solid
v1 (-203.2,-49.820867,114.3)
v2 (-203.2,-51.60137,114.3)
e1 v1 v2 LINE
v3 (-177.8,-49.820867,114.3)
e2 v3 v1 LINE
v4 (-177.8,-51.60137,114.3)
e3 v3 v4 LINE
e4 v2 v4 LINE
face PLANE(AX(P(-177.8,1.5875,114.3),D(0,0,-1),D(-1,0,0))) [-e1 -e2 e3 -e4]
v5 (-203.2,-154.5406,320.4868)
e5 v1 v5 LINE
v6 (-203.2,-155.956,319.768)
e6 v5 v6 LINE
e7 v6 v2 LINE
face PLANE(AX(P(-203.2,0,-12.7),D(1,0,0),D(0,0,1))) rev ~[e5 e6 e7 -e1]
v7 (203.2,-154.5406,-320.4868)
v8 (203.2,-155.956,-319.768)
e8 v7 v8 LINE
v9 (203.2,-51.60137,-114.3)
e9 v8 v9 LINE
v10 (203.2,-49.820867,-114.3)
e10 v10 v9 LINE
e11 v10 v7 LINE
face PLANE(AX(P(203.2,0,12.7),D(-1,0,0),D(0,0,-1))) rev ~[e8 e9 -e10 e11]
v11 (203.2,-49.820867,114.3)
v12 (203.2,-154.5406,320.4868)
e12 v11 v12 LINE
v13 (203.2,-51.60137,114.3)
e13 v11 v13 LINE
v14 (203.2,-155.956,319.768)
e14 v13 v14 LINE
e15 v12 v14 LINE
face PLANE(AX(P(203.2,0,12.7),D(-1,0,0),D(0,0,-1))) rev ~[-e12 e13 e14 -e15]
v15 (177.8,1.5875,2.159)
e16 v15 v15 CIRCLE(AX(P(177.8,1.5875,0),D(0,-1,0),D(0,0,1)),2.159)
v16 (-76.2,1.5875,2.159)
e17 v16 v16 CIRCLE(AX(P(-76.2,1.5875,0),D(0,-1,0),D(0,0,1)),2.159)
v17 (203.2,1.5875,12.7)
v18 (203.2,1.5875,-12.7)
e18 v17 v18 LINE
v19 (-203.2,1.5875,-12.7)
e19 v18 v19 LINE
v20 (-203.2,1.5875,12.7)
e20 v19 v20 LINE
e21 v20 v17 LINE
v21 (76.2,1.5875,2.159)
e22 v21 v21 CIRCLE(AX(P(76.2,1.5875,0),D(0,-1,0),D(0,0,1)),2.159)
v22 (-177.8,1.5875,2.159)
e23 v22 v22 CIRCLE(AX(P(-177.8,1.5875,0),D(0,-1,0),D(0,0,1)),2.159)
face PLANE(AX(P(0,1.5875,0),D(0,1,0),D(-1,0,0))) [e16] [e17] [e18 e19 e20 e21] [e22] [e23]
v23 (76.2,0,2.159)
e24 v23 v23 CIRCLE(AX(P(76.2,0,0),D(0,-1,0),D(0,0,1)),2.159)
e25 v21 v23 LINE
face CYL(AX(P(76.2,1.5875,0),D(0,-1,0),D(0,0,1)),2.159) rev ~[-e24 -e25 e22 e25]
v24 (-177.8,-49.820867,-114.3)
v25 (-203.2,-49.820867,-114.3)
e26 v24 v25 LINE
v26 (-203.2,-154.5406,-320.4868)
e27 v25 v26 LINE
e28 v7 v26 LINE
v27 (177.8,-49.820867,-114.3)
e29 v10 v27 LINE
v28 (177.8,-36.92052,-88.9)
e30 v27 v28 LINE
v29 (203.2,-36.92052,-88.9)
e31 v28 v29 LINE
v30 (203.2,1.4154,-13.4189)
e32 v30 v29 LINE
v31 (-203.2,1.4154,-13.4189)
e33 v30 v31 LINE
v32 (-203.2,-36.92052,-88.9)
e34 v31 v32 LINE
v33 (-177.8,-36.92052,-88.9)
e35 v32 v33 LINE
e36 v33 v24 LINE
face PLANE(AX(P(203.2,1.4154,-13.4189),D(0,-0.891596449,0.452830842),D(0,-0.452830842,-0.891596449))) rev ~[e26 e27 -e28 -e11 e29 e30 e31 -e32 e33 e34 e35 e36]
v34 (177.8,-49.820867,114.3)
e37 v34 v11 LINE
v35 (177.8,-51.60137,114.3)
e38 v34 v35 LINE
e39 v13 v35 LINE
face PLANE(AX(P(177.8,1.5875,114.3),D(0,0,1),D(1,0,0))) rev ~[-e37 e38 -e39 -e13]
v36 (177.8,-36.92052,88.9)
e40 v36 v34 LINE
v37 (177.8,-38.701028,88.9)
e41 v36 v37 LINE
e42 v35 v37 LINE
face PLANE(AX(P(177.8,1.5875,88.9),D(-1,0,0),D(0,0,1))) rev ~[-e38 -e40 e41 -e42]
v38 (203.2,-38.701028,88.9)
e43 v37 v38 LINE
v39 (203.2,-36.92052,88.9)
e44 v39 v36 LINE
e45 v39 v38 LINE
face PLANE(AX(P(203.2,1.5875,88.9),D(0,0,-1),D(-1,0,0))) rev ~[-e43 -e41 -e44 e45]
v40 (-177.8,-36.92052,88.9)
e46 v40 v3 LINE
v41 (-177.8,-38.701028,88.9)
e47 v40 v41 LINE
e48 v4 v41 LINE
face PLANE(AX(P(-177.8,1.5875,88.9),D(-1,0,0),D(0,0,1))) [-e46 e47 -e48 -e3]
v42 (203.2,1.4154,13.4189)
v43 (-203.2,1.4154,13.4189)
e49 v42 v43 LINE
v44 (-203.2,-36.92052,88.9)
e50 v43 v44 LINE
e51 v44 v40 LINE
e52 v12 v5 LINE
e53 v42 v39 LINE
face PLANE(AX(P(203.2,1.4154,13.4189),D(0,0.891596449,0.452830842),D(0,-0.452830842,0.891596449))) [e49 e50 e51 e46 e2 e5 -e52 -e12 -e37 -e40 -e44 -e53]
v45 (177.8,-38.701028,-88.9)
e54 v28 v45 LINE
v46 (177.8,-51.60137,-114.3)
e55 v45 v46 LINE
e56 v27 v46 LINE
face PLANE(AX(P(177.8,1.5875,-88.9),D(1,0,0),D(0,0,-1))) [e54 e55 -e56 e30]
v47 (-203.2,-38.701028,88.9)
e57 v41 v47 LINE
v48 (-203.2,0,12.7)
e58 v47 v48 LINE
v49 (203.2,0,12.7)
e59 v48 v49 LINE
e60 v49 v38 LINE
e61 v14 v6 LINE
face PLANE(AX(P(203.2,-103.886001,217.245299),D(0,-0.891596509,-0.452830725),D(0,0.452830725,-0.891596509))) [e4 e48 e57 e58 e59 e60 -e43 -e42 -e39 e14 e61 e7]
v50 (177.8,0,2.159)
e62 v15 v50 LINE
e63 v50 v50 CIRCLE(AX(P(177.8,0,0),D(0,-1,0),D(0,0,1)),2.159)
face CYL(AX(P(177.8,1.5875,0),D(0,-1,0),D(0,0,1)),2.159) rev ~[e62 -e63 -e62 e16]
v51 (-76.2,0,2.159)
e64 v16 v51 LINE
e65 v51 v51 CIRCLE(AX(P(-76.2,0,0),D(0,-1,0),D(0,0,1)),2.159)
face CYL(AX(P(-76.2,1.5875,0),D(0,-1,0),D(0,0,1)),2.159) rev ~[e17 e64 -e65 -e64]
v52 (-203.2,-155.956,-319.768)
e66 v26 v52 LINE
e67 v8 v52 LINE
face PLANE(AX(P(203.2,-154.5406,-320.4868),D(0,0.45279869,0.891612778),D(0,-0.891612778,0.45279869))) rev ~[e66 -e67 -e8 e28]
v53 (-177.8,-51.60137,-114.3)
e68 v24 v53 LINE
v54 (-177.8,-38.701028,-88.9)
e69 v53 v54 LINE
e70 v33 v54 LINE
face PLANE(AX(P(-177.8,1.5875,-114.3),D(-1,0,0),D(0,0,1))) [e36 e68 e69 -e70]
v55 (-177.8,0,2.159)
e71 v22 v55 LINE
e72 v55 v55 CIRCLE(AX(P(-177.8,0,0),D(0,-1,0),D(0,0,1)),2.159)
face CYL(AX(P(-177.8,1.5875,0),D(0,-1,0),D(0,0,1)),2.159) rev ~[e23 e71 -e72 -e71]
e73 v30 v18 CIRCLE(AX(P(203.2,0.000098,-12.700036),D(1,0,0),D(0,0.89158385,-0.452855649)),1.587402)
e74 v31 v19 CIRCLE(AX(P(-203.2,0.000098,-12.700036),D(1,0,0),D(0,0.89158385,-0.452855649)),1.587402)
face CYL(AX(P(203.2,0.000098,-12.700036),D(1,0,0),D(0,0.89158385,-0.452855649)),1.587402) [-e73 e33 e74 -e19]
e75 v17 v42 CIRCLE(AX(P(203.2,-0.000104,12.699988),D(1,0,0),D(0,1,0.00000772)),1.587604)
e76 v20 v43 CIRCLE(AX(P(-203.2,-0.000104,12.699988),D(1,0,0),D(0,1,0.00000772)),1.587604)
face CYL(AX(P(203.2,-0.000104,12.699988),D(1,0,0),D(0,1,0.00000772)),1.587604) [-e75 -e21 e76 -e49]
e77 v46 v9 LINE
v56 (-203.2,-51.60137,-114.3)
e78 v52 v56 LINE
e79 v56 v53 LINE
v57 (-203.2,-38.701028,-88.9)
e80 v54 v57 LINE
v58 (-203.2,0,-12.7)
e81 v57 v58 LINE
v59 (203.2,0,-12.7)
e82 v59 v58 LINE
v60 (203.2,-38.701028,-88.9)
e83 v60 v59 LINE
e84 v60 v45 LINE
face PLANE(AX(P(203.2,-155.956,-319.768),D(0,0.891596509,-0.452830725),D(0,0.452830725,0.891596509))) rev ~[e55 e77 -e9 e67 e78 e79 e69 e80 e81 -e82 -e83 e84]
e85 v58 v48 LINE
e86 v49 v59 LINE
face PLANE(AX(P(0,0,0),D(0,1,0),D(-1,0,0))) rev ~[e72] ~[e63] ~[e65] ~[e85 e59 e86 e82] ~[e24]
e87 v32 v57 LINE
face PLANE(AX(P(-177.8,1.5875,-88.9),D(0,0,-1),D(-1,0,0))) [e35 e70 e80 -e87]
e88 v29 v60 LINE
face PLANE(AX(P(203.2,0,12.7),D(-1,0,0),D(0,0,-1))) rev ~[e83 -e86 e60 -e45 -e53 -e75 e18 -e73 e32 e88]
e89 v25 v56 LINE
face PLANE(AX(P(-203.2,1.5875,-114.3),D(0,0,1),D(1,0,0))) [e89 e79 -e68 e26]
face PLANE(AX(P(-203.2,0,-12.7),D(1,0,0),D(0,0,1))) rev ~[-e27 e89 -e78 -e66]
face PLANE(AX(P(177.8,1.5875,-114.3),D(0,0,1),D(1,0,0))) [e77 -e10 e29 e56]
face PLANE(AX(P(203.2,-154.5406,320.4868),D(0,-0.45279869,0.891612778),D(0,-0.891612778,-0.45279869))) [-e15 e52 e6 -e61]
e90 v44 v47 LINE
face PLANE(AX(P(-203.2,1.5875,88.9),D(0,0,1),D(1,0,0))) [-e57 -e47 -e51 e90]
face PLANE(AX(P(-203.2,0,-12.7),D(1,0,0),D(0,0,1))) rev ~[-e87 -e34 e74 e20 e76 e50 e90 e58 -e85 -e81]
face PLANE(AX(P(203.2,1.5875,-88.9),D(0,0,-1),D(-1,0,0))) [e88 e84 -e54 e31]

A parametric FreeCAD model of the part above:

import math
import FreeCAD as App
import Part
import Sketcher
from FreeCAD import Vector
Q = App.Units.Quantity

doc = App.newDocument("Part")
body = doc.addObject("PartDesign::Body", "Body")

sketch1 = body.newObject("Sketcher::SketchObject", "Sketch")
sketch1.AttachmentSupport = (doc.getObject("XZ_Plane"), [""])
sketch1.MapMode = "FlatFace"
sketch1.addGeometry([
    Part.LineSegment(Vector(-203, -13, 0), Vector(-203, 13, 0)),
    Part.LineSegment(Vector(-203, 13, 0), Vector(203, 13, 0)),
    Part.LineSegment(Vector(203, 13, 0), Vector(203, -13, 0)),
    Part.LineSegment(Vector(203, -13, 0), Vector(-203, -13, 0)),
], False)
sketch1.addConstraint([
    Sketcher.Constraint("Coincident", 0, 2, 1, 1),
    Sketcher.Constraint("Coincident", 1, 2, 2, 1),
    Sketcher.Constraint("Coincident", 2, 2, 3, 1),
    Sketcher.Constraint("Coincident", 3, 2, 0, 1),
    Sketcher.Constraint("Vertical", 0),
    Sketcher.Constraint("Horizontal", 1),
    Sketcher.Constraint("Vertical", 2),
    Sketcher.Constraint("Horizontal", 3),
    Sketcher.Constraint("Symmetric", 0, 2, 2, 2, -1, 1),
    Sketcher.Constraint("DistanceX", 1, 1, 1, 2, Q("16 in")),
    Sketcher.Constraint("DistanceY", 0, 1, 0, 2, Q("1 in")),
])
pad1 = body.newObject("PartDesign::Pad", "Pad")
pad1.Profile = sketch1
pad1.Length = Q("0.0625 in")
pad1.Reversed = True

sketch2 = body.newObject("Sketcher::SketchObject", "Sketch001")
sketch2.AttachmentSupport = (doc.getObject("XZ_Plane"), [""])
sketch2.MapMode = "FlatFace"
sketch2.AttachmentOffset = App.Placement(Vector(0, 0, -0.0625 * 25.4), App.Rotation())
sketch2.addGeometry([
    Part.Circle(Vector(-177.8, 0, 0), Vector(0, 0, 1), 2.2),
    Part.Circle(Vector(177.8, 0, 0), Vector(0, 0, 1), 2.2),
    Part.Circle(Vector(76.2, 0, 0), Vector(0, 0, 1), 2.2),
    Part.Circle(Vector(-76.2, 0, 0), Vector(0, 0, 1), 2.2),
], False)
sketch2.addConstraint([
    Sketcher.Constraint("Equal", 0, 1),
    Sketcher.Constraint("Equal", 1, 2),
    Sketcher.Constraint("Equal", 2, 3),
    Sketcher.Constraint("Symmetric", 0, 3, 1, 3, -1, 1),
    Sketcher.Constraint("Symmetric", 2, 3, 3, 3, -1, 1),
    Sketcher.Constraint("PointOnObject", 0, 3, -1),
    Sketcher.Constraint("PointOnObject", 2, 3, -1),
    Sketcher.Constraint("Diameter", 0, Q("0.17 in")),
    Sketcher.Constraint("DistanceX", 0, 3, -1, 1, Q("7 in")),
    Sketcher.Constraint("DistanceX", -1, 1, 2, 3, Q("3 in")),
])
doc.recompute()
hole = body.newObject("PartDesign::Hole", "Hole")
hole.Profile = sketch2
hole.ThreadType = "None"
hole.Diameter = Q("0.17 in")
hole.DepthType = "ThroughAll"
hole.Reversed = True

sketch3 = body.newObject("Sketcher::SketchObject", "Sketch002")
sketch3.AttachmentSupport = (doc.getObject("YZ_Plane"), [""])
sketch3.MapMode = "FlatFace"
sketch3.AttachmentOffset = App.Placement(Vector(0, 0, 8 * 25.4), App.Rotation())
sketch3.addGeometry([
    Part.LineSegment(Vector(0, 12.7, 0), Vector(1.6, 12.7, 0)),
    Part.ArcOfCircle(Part.Circle(Vector(0, 12.7, 0), Vector(0, 0, 1), 1.6), math.radians(0), math.radians(27)),
    Part.LineSegment(Vector(1.4, 13.4, 0), Vector(-154.5, 320.5, 0)),
    Part.LineSegment(Vector(-154.5, 320.5, 0), Vector(-156, 319.8, 0)),
    Part.LineSegment(Vector(-156, 319.8, 0), Vector(0, 12.7, 0)),
    Part.LineSegment(Vector(1.6, -12.7, 0), Vector(0, -12.7, 0)),
    Part.LineSegment(Vector(0, -12.7, 0), Vector(-156, -319.8, 0)),
    Part.LineSegment(Vector(-156, -319.8, 0), Vector(-154.5, -320.5, 0)),
    Part.LineSegment(Vector(-154.5, -320.5, 0), Vector(1.4, -13.4, 0)),
    Part.ArcOfCircle(Part.Circle(Vector(0, -12.7, 0), Vector(0, 0, 1), 1.6), math.radians(-27), math.radians(0)),
], False)
sketch3.addConstraint([
    Sketcher.Constraint("Coincident", 0, 2, 1, 1),
    Sketcher.Constraint("Tangent", 1, 2, 2, 1),
    Sketcher.Constraint("Coincident", 2, 2, 3, 1),
    Sketcher.Constraint("Coincident", 3, 2, 4, 1),
    Sketcher.Constraint("Coincident", 4, 2, 0, 1),
    Sketcher.Constraint("Coincident", 5, 2, 6, 1),
    Sketcher.Constraint("Coincident", 6, 2, 7, 1),
    Sketcher.Constraint("Coincident", 7, 2, 8, 1),
    Sketcher.Constraint("Tangent", 8, 2, 9, 1),
    Sketcher.Constraint("Coincident", 9, 2, 5, 1),
    Sketcher.Constraint("Horizontal", 0),
    Sketcher.Constraint("Horizontal", 5),
    Sketcher.Constraint("Coincident", 4, 2, 1, 3),
    Sketcher.Constraint("Coincident", 5, 2, 9, 3),
    Sketcher.Constraint("Equal", 1, 9),
    Sketcher.Constraint("Symmetric", 1, 3, 9, 3, -1, 1),
    Sketcher.Constraint("Symmetric", 3, 2, 6, 2, -1),
    Sketcher.Constraint("Symmetric", 2, 2, 7, 2, -1),
    Sketcher.Constraint("PointOnObject", 1, 3, -2),
    Sketcher.Constraint("Perpendicular", 2, 3),
    Sketcher.Constraint("Perpendicular", 3, 4),
    Sketcher.Constraint("DistanceY", 9, 3, 1, 3, Q("1 in")),
    Sketcher.Constraint("Radius", 1, Q("0.0625 in")),
    Sketcher.Constraint("DistanceX", 3, 2, -1, 1, Q("6.14 in")),
    Sketcher.Constraint("DistanceY", 1, 2, 3, 2, Q("12.061 in")),
])
pad2 = body.newObject("PartDesign::Pad", "Pad001")
pad2.Profile = sketch3
pad2.Length = Q("16 in")
pad2.Reversed = True

sketch4 = body.newObject("Sketcher::SketchObject", "Sketch003")
sketch4.AttachmentSupport = (doc.getObject("XZ_Plane"), [""])
sketch4.MapMode = "FlatFace"
sketch4.AttachmentOffset = App.Placement(Vector(0, 0, -0.0625 * 25.4), App.Rotation())
sketch4.addGeometry([
    Part.LineSegment(Vector(178, 114, 0), Vector(203, 114, 0)),
    Part.LineSegment(Vector(203, 114, 0), Vector(203, 89, 0)),
    Part.LineSegment(Vector(203, 89, 0), Vector(178, 89, 0)),
    Part.LineSegment(Vector(178, 89, 0), Vector(178, 114, 0)),
    Part.LineSegment(Vector(178, -89, 0), Vector(203, -89, 0)),
    Part.LineSegment(Vector(203, -89, 0), Vector(203, -114, 0)),
    Part.LineSegment(Vector(203, -114, 0), Vector(178, -114, 0)),
    Part.LineSegment(Vector(178, -114, 0), Vector(178, -89, 0)),
    Part.LineSegment(Vector(-203, -114, 0), Vector(-203, -89, 0)),
    Part.LineSegment(Vector(-203, -89, 0), Vector(-178, -89, 0)),
    Part.LineSegment(Vector(-178, -89, 0), Vector(-178, -114, 0)),
    Part.LineSegment(Vector(-178, -114, 0), Vector(-203, -114, 0)),
    Part.LineSegment(Vector(-203, 89, 0), Vector(-203, 114, 0)),
    Part.LineSegment(Vector(-203, 114, 0), Vector(-178, 114, 0)),
    Part.LineSegment(Vector(-178, 114, 0), Vector(-178, 89, 0)),
    Part.LineSegment(Vector(-178, 89, 0), Vector(-203, 89, 0)),
], False)
sketch4.addConstraint([
    Sketcher.Constraint("Coincident", 0, 2, 1, 1),
    Sketcher.Constraint("Coincident", 1, 2, 2, 1),
    Sketcher.Constraint("Coincident", 2, 2, 3, 1),
    Sketcher.Constraint("Coincident", 3, 2, 0, 1),
    Sketcher.Constraint("Coincident", 4, 2, 5, 1),
    Sketcher.Constraint("Coincident", 5, 2, 6, 1),
    Sketcher.Constraint("Coincident", 6, 2, 7, 1),
    Sketcher.Constraint("Coincident", 7, 2, 4, 1),
    Sketcher.Constraint("Coincident", 8, 2, 9, 1),
    Sketcher.Constraint("Coincident", 9, 2, 10, 1),
    Sketcher.Constraint("Coincident", 10, 2, 11, 1),
    Sketcher.Constraint("Coincident", 11, 2, 8, 1),
    Sketcher.Constraint("Coincident", 12, 2, 13, 1),
    Sketcher.Constraint("Coincident", 13, 2, 14, 1),
    Sketcher.Constraint("Coincident", 14, 2, 15, 1),
    Sketcher.Constraint("Coincident", 15, 2, 12, 1),
    Sketcher.Constraint("Horizontal", 0),
    Sketcher.Constraint("Vertical", 1),
    Sketcher.Constraint("Horizontal", 2),
    Sketcher.Constraint("Vertical", 3),
    Sketcher.Constraint("Horizontal", 4),
    Sketcher.Constraint("Vertical", 5),
    Sketcher.Constraint("Horizontal", 6),
    Sketcher.Constraint("Vertical", 7),
    Sketcher.Constraint("Vertical", 8),
    Sketcher.Constraint("Horizontal", 9),
    Sketcher.Constraint("Vertical", 10),
    Sketcher.Constraint("Horizontal", 11),
    Sketcher.Constraint("Vertical", 12),
    Sketcher.Constraint("Horizontal", 13),
    Sketcher.Constraint("Vertical", 14),
    Sketcher.Constraint("Horizontal", 15),
    Sketcher.Constraint("Symmetric", 1, 2, 8, 2, -1, 1),
    Sketcher.Constraint("Symmetric", 3, 2, 10, 2, -1, 1),
    Sketcher.Constraint("Symmetric", 5, 2, 12, 2, -1, 1),
    Sketcher.Constraint("Symmetric", 7, 2, 14, 2, -1, 1),
    Sketcher.Constraint("Symmetric", 4, 2, 8, 2, -2),
    Sketcher.Constraint("Symmetric", 6, 2, 10, 2, -2),
    Sketcher.Constraint("Equal", 15, 1),
    Sketcher.Constraint("DistanceX", 0, 1, 0, 2, Q("1 in")),
    Sketcher.Constraint("DistanceX", -1, 1, 0, 2, Q("8 in")),
    Sketcher.Constraint("DistanceY", 4, 2, 1, 2, Q("7 in")),
])
pocket1 = body.newObject("PartDesign::Pocket", "Pocket")
pocket1.Profile = sketch4
pocket1.Type = "ThroughAll"
pocket1.Reversed = True

doc.recompute()
